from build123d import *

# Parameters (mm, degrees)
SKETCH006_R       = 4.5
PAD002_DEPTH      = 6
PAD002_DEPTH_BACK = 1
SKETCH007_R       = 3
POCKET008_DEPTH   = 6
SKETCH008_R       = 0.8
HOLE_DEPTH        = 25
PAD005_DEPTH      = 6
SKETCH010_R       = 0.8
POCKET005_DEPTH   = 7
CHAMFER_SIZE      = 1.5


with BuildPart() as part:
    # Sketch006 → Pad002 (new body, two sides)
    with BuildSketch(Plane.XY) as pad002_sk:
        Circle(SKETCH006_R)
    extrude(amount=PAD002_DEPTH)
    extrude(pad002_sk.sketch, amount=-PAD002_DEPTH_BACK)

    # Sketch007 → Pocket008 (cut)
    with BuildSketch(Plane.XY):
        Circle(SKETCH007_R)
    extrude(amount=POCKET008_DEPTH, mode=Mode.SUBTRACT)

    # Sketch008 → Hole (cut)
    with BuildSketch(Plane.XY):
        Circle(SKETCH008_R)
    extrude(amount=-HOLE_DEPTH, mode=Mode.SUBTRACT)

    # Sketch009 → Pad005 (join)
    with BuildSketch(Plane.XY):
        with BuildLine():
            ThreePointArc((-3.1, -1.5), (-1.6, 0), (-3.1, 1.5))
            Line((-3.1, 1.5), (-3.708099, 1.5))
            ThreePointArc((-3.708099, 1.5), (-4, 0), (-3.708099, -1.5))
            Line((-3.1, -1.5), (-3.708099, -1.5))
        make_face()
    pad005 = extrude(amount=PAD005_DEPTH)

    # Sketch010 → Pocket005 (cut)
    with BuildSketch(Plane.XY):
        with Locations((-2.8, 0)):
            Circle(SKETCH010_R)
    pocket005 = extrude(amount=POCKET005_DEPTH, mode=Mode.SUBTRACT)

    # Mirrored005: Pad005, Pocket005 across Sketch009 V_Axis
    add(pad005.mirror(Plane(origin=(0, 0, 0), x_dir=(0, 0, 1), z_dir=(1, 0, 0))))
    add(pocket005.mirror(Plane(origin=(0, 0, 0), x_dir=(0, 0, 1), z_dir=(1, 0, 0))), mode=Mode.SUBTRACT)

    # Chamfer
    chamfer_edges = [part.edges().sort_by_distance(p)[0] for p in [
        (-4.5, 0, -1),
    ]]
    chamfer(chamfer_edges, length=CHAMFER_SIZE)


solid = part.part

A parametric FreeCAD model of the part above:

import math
import FreeCAD as App
import Part
import Sketcher
from FreeCAD import Vector
Q = App.Units.Quantity


def edges_at(feature, points):
    """Names of the edges that pass closest to the given points."""
    edges = feature.Shape.Edges
    near = lambda p: min(range(len(edges)), key=lambda i: edges[i].distToShape(Part.Vertex(*p))[0])
    return sorted({f"Edge{near(p) + 1}" for p in points})

doc = App.newDocument("Part")
body = doc.addObject("PartDesign::Body", "Body")

# Sketch on XY plane
sketch1 = body.newObject("Sketcher::SketchObject", "Sketch")
sketch1.AttachmentSupport = (doc.getObject("XY_Plane"), [""])
sketch1.MapMode = "FlatFace"
sketch1.addGeometry(Part.Circle(Vector(0, 0, 0), Vector(0, 0, 1), 4.5), False)
sketch1.addConstraint(Sketcher.Constraint("Coincident", 0, 3, -1, 1))
sketch1.addConstraint(Sketcher.Constraint("Diameter", 0, Q("9 mm")))
pad1 = body.newObject("PartDesign::Pad", "Pad")
pad1.Profile = sketch1
pad1.Type = "TwoLengths"
pad1.Length = 6
pad1.Length2 = 1

# Sketch on XY plane
sketch2 = body.newObject("Sketcher::SketchObject", "Sketch001")
sketch2.AttachmentSupport = (doc.getObject("XY_Plane"), [""])
sketch2.MapMode = "FlatFace"
sketch2.addGeometry(Part.Circle(Vector(0, 0, 0), Vector(0, 0, 1), 3), False)
sketch2.addConstraint(Sketcher.Constraint("Coincident", 0, 3, -1, 1))
sketch2.addConstraint(Sketcher.Constraint("Diameter", 0, Q("6 mm")))
pocket1 = body.newObject("PartDesign::Pocket", "Pocket")
pocket1.Profile = sketch2
pocket1.Length = 6
pocket1.Reversed = True

# Sketch on XY plane
sketch3 = body.newObject("Sketcher::SketchObject", "Sketch002")
sketch3.AttachmentSupport = (doc.getObject("XY_Plane"), [""])
sketch3.MapMode = "FlatFace"
sketch3.addGeometry(Part.Circle(Vector(0, 0, 0), Vector(0, 0, 1), 0.8), False)
sketch3.addConstraint(Sketcher.Constraint("Coincident", 0, 3, -1, 1))
sketch3.addConstraint(Sketcher.Constraint("Diameter", 0, Q("1.6 mm")))
pocket2 = body.newObject("PartDesign::Pocket", "Pocket001")
pocket2.Profile = sketch3
pocket2.Length = 25

# Sketch on XY plane
sketch4 = body.newObject("Sketcher::SketchObject", "Sketch003")
sketch4.AttachmentSupport = (doc.getObject("XY_Plane"), [""])
sketch4.MapMode = "FlatFace"
sketch4.addGeometry(Part.ArcOfCircle(Part.Circle(Vector(-3.1, 0, 0), Vector(0, 0, 1), 1.5), math.radians(-90), math.radians(90)), False)
sketch4.addGeometry(Part.LineSegment(Vector(-3.1, 1.5, 0), Vector(-3.7, 1.5, 0)), False)
sketch4.addGeometry(Part.ArcOfCircle(Part.Circle(Vector(0, 0, 0), Vector(0, 0, 1), 4), math.radians(158), math.radians(202)), False)
sketch4.addGeometry(Part.LineSegment(Vector(-3.7, -1.5, 0), Vector(-3.1, -1.5, 0)), False)
sketch4.addConstraint(Sketcher.Constraint("Tangent", 0, 2, 1, 1))
sketch4.addConstraint(Sketcher.Constraint("Coincident", 1, 2, 2, 1))
sketch4.addConstraint(Sketcher.Constraint("Coincident", 2, 2, 3, 1))
sketch4.addConstraint(Sketcher.Constraint("Tangent", 3, 2, 0, 1))
sketch4.addConstraint(Sketcher.Constraint("Horizontal", 1))
sketch4.addConstraint(Sketcher.Constraint("Horizontal", 3))
sketch4.addConstraint(Sketcher.Constraint("Coincident", 2, 3, -1, 1))
sketch4.addConstraint(Sketcher.Constraint("PointOnObject", 0, 3, -1))
sketch4.addConstraint(Sketcher.Constraint("Radius", 0, Q("1.5 mm")))
sketch4.addConstraint(Sketcher.Constraint("DistanceX", 0, 3, -1, 1, Q("3.1 mm")))
sketch4.addConstraint(Sketcher.Constraint("DistanceX", 1, 2, 1, 1, Q("0.608099 mm")))
pad2 = body.newObject("PartDesign::Pad", "Pad001")
pad2.Profile = sketch4
pad2.Length = 6

# Sketch on XY plane
sketch5 = body.newObject("Sketcher::SketchObject", "Sketch004")
sketch5.AttachmentSupport = (doc.getObject("XY_Plane"), [""])
sketch5.MapMode = "FlatFace"
sketch5.addGeometry(Part.Circle(Vector(-2.8, 0, 0), Vector(0, 0, 1), 0.8), False)
sketch5.addConstraint(Sketcher.Constraint("PointOnObject", 0, 3, -1))
sketch5.addConstraint(Sketcher.Constraint("Diameter", 0, Q("1.6 mm")))
sketch5.addConstraint(Sketcher.Constraint("DistanceX", 0, 3, -1, 1, Q("2.8 mm")))
pocket3 = body.newObject("PartDesign::Pocket", "Pocket002")
pocket3.Profile = sketch5
pocket3.Length = 7
pocket3.Reversed = True
doc.recompute()

mirrored = body.newObject("PartDesign::Mirrored", "Mirrored")
mirrored.Originals = [pad2, pocket3]
mirrored.MirrorPlane = (doc.getObject("YZ_Plane"), [""])
body.Tip = mirrored
doc.recompute()

chamfer = body.newObject("PartDesign::Chamfer", "Chamfer")
chamfer.Base = (mirrored, edges_at(mirrored, [(-4.5, 0, -1)]))
chamfer.Size = 1.5

doc.recompute()
